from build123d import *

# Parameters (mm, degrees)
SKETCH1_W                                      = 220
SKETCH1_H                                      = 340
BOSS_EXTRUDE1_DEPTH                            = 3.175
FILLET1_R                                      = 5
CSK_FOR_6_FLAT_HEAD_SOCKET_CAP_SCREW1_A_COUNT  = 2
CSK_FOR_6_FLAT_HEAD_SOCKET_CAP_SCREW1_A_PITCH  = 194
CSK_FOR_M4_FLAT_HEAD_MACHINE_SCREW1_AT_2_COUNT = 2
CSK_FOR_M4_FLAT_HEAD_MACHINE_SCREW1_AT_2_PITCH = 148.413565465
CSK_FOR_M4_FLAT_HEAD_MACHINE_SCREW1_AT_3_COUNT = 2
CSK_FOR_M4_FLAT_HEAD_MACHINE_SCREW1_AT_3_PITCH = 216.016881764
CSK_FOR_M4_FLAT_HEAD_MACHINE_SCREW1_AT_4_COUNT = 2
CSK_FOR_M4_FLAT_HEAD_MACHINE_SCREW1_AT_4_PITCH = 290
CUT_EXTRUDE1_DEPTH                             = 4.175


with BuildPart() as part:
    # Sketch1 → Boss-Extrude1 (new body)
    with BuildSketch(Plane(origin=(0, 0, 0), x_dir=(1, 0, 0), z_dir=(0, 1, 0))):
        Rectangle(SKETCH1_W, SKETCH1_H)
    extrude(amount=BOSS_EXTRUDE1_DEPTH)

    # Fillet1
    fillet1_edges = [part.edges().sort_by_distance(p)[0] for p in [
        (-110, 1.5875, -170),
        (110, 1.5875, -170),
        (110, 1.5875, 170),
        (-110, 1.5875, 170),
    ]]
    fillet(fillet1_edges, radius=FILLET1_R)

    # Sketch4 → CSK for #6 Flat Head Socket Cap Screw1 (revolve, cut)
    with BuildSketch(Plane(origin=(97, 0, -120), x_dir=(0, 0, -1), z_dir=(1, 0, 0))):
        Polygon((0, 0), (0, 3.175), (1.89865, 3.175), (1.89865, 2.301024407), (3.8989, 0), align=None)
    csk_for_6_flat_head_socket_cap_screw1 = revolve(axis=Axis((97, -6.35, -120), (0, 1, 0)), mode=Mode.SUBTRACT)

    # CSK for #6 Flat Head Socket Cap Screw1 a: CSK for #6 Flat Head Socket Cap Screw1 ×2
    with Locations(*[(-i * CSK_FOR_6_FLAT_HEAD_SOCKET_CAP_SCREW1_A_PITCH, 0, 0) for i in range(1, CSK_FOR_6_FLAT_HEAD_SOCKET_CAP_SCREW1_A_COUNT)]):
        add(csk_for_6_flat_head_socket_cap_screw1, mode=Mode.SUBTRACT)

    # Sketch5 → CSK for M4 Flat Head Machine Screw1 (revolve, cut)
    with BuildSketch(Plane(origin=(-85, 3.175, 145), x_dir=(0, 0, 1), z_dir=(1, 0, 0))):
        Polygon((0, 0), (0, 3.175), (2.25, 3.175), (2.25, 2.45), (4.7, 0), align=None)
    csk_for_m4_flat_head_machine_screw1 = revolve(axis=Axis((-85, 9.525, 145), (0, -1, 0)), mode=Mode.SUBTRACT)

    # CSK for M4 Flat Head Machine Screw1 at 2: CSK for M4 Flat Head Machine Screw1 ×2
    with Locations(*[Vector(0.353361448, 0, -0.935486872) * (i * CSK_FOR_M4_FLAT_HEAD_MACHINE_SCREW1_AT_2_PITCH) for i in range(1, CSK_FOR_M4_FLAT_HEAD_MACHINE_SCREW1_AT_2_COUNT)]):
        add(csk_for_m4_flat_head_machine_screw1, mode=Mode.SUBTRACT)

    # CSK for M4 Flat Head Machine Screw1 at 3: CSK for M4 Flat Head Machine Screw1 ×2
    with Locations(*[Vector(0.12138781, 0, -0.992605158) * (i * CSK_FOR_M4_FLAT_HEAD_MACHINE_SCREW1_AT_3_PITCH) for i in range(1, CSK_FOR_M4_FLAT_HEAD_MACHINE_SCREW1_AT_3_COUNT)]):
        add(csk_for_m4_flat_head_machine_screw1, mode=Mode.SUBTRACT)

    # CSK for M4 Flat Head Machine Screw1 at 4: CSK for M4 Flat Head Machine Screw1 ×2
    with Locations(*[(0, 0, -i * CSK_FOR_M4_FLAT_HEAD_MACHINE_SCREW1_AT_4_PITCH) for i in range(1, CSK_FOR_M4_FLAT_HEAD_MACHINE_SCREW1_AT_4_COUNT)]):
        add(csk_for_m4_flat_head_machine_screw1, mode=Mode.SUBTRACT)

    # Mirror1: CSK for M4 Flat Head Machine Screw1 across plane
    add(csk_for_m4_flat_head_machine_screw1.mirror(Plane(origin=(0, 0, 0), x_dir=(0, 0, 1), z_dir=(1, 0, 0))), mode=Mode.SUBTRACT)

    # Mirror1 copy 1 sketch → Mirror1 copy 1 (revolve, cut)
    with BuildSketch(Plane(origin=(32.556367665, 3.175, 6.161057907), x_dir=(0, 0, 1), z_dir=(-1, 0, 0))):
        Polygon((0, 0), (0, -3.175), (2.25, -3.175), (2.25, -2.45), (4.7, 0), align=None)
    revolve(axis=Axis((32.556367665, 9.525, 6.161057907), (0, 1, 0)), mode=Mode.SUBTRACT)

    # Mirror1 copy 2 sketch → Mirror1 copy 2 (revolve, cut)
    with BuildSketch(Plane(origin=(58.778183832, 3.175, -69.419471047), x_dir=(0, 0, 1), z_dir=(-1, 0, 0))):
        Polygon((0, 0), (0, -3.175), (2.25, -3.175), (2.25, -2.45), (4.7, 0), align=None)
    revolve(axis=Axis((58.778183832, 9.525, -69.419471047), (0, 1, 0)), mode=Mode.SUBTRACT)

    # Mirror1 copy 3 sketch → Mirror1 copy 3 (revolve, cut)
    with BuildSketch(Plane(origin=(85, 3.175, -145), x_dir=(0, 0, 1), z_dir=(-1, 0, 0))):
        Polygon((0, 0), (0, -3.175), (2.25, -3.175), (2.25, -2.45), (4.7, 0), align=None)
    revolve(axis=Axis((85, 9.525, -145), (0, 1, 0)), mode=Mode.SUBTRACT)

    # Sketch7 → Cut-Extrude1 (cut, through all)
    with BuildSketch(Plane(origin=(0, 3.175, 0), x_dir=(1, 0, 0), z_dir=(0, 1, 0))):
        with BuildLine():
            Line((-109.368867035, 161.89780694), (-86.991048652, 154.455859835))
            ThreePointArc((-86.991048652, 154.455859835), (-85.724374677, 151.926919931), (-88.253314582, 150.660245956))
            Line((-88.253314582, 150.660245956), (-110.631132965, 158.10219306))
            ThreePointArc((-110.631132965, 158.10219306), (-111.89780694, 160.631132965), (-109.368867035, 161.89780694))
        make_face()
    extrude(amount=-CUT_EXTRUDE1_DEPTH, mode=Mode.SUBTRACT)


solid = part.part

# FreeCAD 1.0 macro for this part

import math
import FreeCAD as App
import Part
import Sketcher
Q = App.Units.Quantity


def edges_at(feature, points):
    """Names of the edges that pass closest to the given points."""
    edges = feature.Shape.Edges
    near = lambda p: min(range(len(edges)), key=lambda i: edges[i].distToShape(Part.Vertex(*p))[0])
    return sorted({f"Edge{near(p) + 1}" for p in points})


def add_polygon(sketch, points):
    """Adds a closed chain of lines whose ends are joined by coincident constraints."""
    first, n = sketch.GeometryCount, len(points)
    for a, b in zip(points, points[1:] + points[:1]):
        sketch.addGeometry(Part.LineSegment(App.Vector(*a, 0), App.Vector(*b, 0)), False)
    for i in range(n):
        sketch.addConstraint(Sketcher.Constraint("Coincident", first + i, 2, first + (i + 1) % n, 1))

doc = App.newDocument("Part")
params = doc.addObject("Spreadsheet::Sheet", "Params")
for row, (alias, value) in enumerate([
    ("sketch1_width", "220 mm"),
    ("sketch1_height", "340 mm"),
    ("pad1_length", "3.175 mm"),
    ("fillet_radius", "5 mm"),
    ("groove_angle", "360 deg"),
    ("linearpattern_pitch", "194 mm"),
    ("sketch3_height", "4.7 mm"),
    ("sketch3_height2", "2.25 mm"),
    ("groove2_angle", "360 deg"),
    ("linearpattern2_pitch", "148.413566 mm"),
    ("linearpattern3_pitch", "216.016882 mm"),
    ("linearpattern4_pitch", "290 mm"),
    ("sketch4_height", "4.7 mm"),
    ("sketch4_height2", "2.25 mm"),
    ("groove3_angle", "360 deg"),
    ("sketch5_height", "4.7 mm"),
    ("sketch5_height2", "2.25 mm"),
    ("groove4_angle", "360 deg"),
    ("sketch6_height", "4.7 mm"),
    ("sketch6_height2", "2.25 mm"),
    ("groove5_angle", "360 deg"),
    ("sketch7_radius", "2 mm"),
], start=1):
    params.set(f"A{row}", alias)
    params.set(f"B{row}", "=" + value)
    params.setAlias(f"B{row}", alias)

body = doc.addObject("PartDesign::Body", "Body")

sketch1 = doc.addObject("Sketcher::SketchObject", "Sketch")
body.addObject(sketch1)
sketch1.AttachmentSupport = (doc.XZ_Plane, [""])
sketch1.MapMode = "FlatFace"
add_polygon(sketch1, [(-110, -170), (-110, 170), (110, 170), (110, -170)])
sketch1.addConstraint([
    Sketcher.Constraint("Vertical", 0),
    Sketcher.Constraint("Horizontal", 1),
    Sketcher.Constraint("Vertical", 2),
    Sketcher.Constraint("Horizontal", 3),
    Sketcher.Constraint("Symmetric", 0, 2, 2, 2, -1, 1),
    Sketcher.Constraint("DistanceX", 1, 1, 1, 2, 220.0),
    Sketcher.Constraint("DistanceY", 0, 1, 0, 2, 340.0),
])
sketch1.setExpression("Constraints[9]", "Params.sketch1_width")
sketch1.setExpression("Constraints[10]", "Params.sketch1_height")
pad1 = doc.addObject("PartDesign::Pad", "Pad")
body.addObject(pad1)
pad1.Profile = sketch1
pad1.setExpression("Length", "Params.pad1_length")
pad1.Reversed = True
doc.recompute()

fillet = doc.addObject("PartDesign::Fillet", "Fillet")
body.addObject(fillet)
fillet.Base = (pad1, edges_at(pad1, [
    (-110, 1.587, -170),
    (110, 1.587, -170),
    (110, 1.587, 170),
    (-110, 1.587, 170),
]))
fillet.setExpression("Radius", "Params.fillet_radius")

sketch2 = doc.addObject("Sketcher::SketchObject", "Sketch001")
body.addObject(sketch2)
sketch2.AttachmentSupport = (doc.YZ_Plane, [""])
sketch2.MapMode = "FlatFace"
sketch2.AttachmentOffset = App.Placement(App.Vector(0, 0, 97), App.Rotation())
add_polygon(sketch2, [(3.2, -120), (0, -120), (0, -123.9), (2.3, -121.9), (3.2, -121.9)])
sketch2.addGeometry(Part.LineSegment(App.Vector(0, -120, 0), App.Vector(3.2, -120, 0)), True)
sketch2.addConstraint([
    Sketcher.Constraint("Horizontal", 0),
    Sketcher.Constraint("Vertical", 1),
    Sketcher.Constraint("Horizontal", 3),
    Sketcher.Constraint("Vertical", 4),
    Sketcher.Constraint("Horizontal", 5),
    Sketcher.Constraint("Coincident", 5, 1, 0, 2),
    Sketcher.Constraint("PointOnObject", 0, 2, -2),
    Sketcher.Constraint("Vertical", 3, 2, 5, 2),
    Sketcher.Constraint("Angle", 2, Q("41 deg")),
    Sketcher.Constraint("DistanceY", 0, 2, -1, 1, 120.0),
    Sketcher.Constraint("DistanceX", 0, 2, 0, 1, 3.175),
    Sketcher.Constraint("DistanceY", 1, 2, 1, 1, 3.8989),
    Sketcher.Constraint("DistanceY", 4, 1, 4, 2, 1.89865),
])
groove = doc.addObject("PartDesign::Groove", "Groove")
body.addObject(groove)
groove.Profile = sketch2
groove.ReferenceAxis = (sketch2, ["Axis0"])
groove.setExpression("Angle", "Params.groove_angle")
doc.recompute()

linearpattern = doc.addObject("PartDesign::LinearPattern", "LinearPattern")
body.addObject(linearpattern)
linearpattern.Originals = [groove]
linearpattern.Direction = (doc.X_Axis, [""])
linearpattern.Mode = "offset"
linearpattern.setExpression("Offset", "Params.linearpattern_pitch")
linearpattern.Occurrences = 2
linearpattern.Reversed = True
body.Tip = linearpattern

sketch3 = doc.addObject("Sketcher::SketchObject", "Sketch002")
body.addObject(sketch3)
sketch3.AttachmentSupport = (doc.YZ_Plane, [""])
sketch3.MapMode = "FlatFace"
sketch3.AttachmentOffset = App.Placement(App.Vector(0, 0, -85), App.Rotation())
add_polygon(sketch3, [(0, 145), (3.2, 145), (3.2, 149.7), (0.7, 147.2), (0, 147.2)])
sketch3.addGeometry(Part.LineSegment(App.Vector(3.2, 145, 0), App.Vector(0, 145, 0)), True)
sketch3.addConstraint([
    Sketcher.Constraint("Horizontal", 0),
    Sketcher.Constraint("Vertical", 1),
    Sketcher.Constraint("Horizontal", 3),
    Sketcher.Constraint("Vertical", 4),
    Sketcher.Constraint("Horizontal", 5),
    Sketcher.Constraint("Coincident", 5, 1, 0, 2),
    Sketcher.Constraint("PointOnObject", 3, 2, -2),
    Sketcher.Constraint("PointOnObject", 5, 2, -2),
    Sketcher.Constraint("Angle", 2, Q("-135 deg")),
    Sketcher.Constraint("DistanceY", 1, 1, 1, 2, 4.7),
    Sketcher.Constraint("DistanceY", -1, 1, 0, 2, 145.0),
    Sketcher.Constraint("DistanceY", 4, 2, 4, 1, 2.25),
    Sketcher.Constraint("DistanceX", 0, 1, 0, 2, 3.175),
])
sketch3.setExpression("Constraints[14]", "Params.sketch3_height")
sketch3.setExpression("Constraints[16]", "Params.sketch3_height2")
groove2 = doc.addObject("PartDesign::Groove", "Groove001")
body.addObject(groove2)
groove2.Profile = sketch3
groove2.ReferenceAxis = (sketch3, ["Axis0"])
groove2.setExpression("Angle", "Params.groove2_angle")
doc.recompute()

datumline = doc.addObject("PartDesign::Line", "DatumLine")
body.addObject(datumline)
datumline.Placement = App.Placement(App.Vector(0, 0, 0), App.Rotation(App.Vector(0, 0, 1), App.Vector(0.353361448, 0, -0.935486872)))
linearpattern2 = doc.addObject("PartDesign::LinearPattern", "LinearPattern001")
body.addObject(linearpattern2)
linearpattern2.Originals = [groove2]
linearpattern2.Direction = (datumline, [""])
linearpattern2.Mode = "offset"
linearpattern2.setExpression("Offset", "Params.linearpattern2_pitch")
linearpattern2.Occurrences = 2
body.Tip = linearpattern2
doc.recompute()

datumline2 = doc.addObject("PartDesign::Line", "DatumLine001")
body.addObject(datumline2)
datumline2.Placement = App.Placement(App.Vector(0, 0, 0), App.Rotation(App.Vector(0, 0, 1), App.Vector(0.12138781, 0, -0.992605158)))
linearpattern3 = doc.addObject("PartDesign::LinearPattern", "LinearPattern002")
body.addObject(linearpattern3)
linearpattern3.Originals = [groove2]
linearpattern3.Direction = (datumline2, [""])
linearpattern3.Mode = "offset"
linearpattern3.setExpression("Offset", "Params.linearpattern3_pitch")
linearpattern3.Occurrences = 2
body.Tip = linearpattern3
doc.recompute()

linearpattern4 = doc.addObject("PartDesign::LinearPattern", "LinearPattern003")
body.addObject(linearpattern4)
linearpattern4.Originals = [groove2]
linearpattern4.Direction = (doc.Z_Axis, [""])
linearpattern4.Mode = "offset"
linearpattern4.setExpression("Offset", "Params.linearpattern4_pitch")
linearpattern4.Occurrences = 2
linearpattern4.Reversed = True
body.Tip = linearpattern4
doc.recompute()

mirrored = doc.addObject("PartDesign::Mirrored", "Mirrored")
body.addObject(mirrored)
mirrored.Originals = [groove2]
mirrored.MirrorPlane = (doc.YZ_Plane, [""])
body.Tip = mirrored

sketch4 = doc.addObject("Sketcher::SketchObject", "Sketch003")
body.addObject(sketch4)
sketch4.AttachmentSupport = (doc.YZ_Plane, [""])
sketch4.MapMode = "FlatFace"
sketch4.AttachmentOffset = App.Placement(App.Vector(0, 0, 32.556368), App.Rotation())
add_polygon(sketch4, [(3.2, 6.2), (0, 6.2), (0, 8.4), (0.7, 8.4), (3.2, 10.9)])
sketch4.addGeometry(Part.LineSegment(App.Vector(0, 6.2, 0), App.Vector(3.2, 6.2, 0)), True)
sketch4.addConstraint([
    Sketcher.Constraint("Horizontal", 0),
    Sketcher.Constraint("Vertical", 1),
    Sketcher.Constraint("Horizontal", 2),
    Sketcher.Constraint("Vertical", 4),
    Sketcher.Constraint("Horizontal", 5),
    Sketcher.Constraint("Coincident", 5, 1, 0, 2),
    Sketcher.Constraint("PointOnObject", 0, 2, -2),
    Sketcher.Constraint("Vertical", 3, 2, 5, 2),
    Sketcher.Constraint("Angle", 3, Q("45 deg")),
    Sketcher.Constraint("DistanceY", 4, 2, 4, 1, 4.7),
    Sketcher.Constraint("DistanceY", 1, 1, 1, 2, 2.25),
    Sketcher.Constraint("DistanceX", 0, 2, 0, 1, 3.175),
    Sketcher.Constraint("DistanceY", -1, 1, 0, 2, 6.161058),
])
sketch4.setExpression("Constraints[14]", "Params.sketch4_height")
sketch4.setExpression("Constraints[15]", "Params.sketch4_height2")
groove3 = doc.addObject("PartDesign::Groove", "Groove002")
body.addObject(groove3)
groove3.Profile = sketch4
groove3.ReferenceAxis = (sketch4, ["Axis0"])
groove3.setExpression("Angle", "Params.groove3_angle")

sketch5 = doc.addObject("Sketcher::SketchObject", "Sketch004")
body.addObject(sketch5)
sketch5.AttachmentSupport = (doc.YZ_Plane, [""])
sketch5.MapMode = "FlatFace"
sketch5.AttachmentOffset = App.Placement(App.Vector(0, 0, 58.778184), App.Rotation())
add_polygon(sketch5, [(3.2, -69.4), (0, -69.4), (0, -67.2), (0.7, -67.2), (3.2, -64.7)])
sketch5.addGeometry(Part.LineSegment(App.Vector(0, -69.4, 0), App.Vector(3.2, -69.4, 0)), True)
sketch5.addConstraint([
    Sketcher.Constraint("Horizontal", 0),
    Sketcher.Constraint("Vertical", 1),
    Sketcher.Constraint("Horizontal", 2),
    Sketcher.Constraint("Vertical", 4),
    Sketcher.Constraint("Horizontal", 5),
    Sketcher.Constraint("Coincident", 5, 1, 0, 2),
    Sketcher.Constraint("PointOnObject", 0, 2, -2),
    Sketcher.Constraint("Vertical", 3, 2, 5, 2),
    Sketcher.Constraint("Angle", 3, Q("45 deg")),
    Sketcher.Constraint("DistanceY", 4, 2, 4, 1, 4.7),
    Sketcher.Constraint("DistanceY", 1, 1, 1, 2, 2.25),
    Sketcher.Constraint("DistanceX", 0, 2, 0, 1, 3.175),
    Sketcher.Constraint("DistanceY", 0, 2, -1, 1, 69.419471),
])
sketch5.setExpression("Constraints[14]", "Params.sketch5_height")
sketch5.setExpression("Constraints[15]", "Params.sketch5_height2")
groove4 = doc.addObject("PartDesign::Groove", "Groove003")
body.addObject(groove4)
groove4.Profile = sketch5
groove4.ReferenceAxis = (sketch5, ["Axis0"])
groove4.setExpression("Angle", "Params.groove4_angle")

sketch6 = doc.addObject("Sketcher::SketchObject", "Sketch005")
body.addObject(sketch6)
sketch6.AttachmentSupport = (doc.YZ_Plane, [""])
sketch6.MapMode = "FlatFace"
sketch6.AttachmentOffset = App.Placement(App.Vector(0, 0, 85), App.Rotation())
add_polygon(sketch6, [(3.2, -145), (0, -145), (0, -142.8), (0.7, -142.8), (3.2, -140.3)])
sketch6.addGeometry(Part.LineSegment(App.Vector(0, -145, 0), App.Vector(3.2, -145, 0)), True)
sketch6.addConstraint([
    Sketcher.Constraint("Horizontal", 0),
    Sketcher.Constraint("Vertical", 1),
    Sketcher.Constraint("Horizontal", 2),
    Sketcher.Constraint("Vertical", 4),
    Sketcher.Constraint("Horizontal", 5),
    Sketcher.Constraint("Coincident", 5, 1, 0, 2),
    Sketcher.Constraint("PointOnObject", 0, 2, -2),
    Sketcher.Constraint("Vertical", 3, 2, 5, 2),
    Sketcher.Constraint("Angle", 3, Q("45 deg")),
    Sketcher.Constraint("DistanceY", 4, 2, 4, 1, 4.7),
    Sketcher.Constraint("DistanceY", 0, 2, -1, 1, 145.0),
    Sketcher.Constraint("DistanceY", 1, 1, 1, 2, 2.25),
    Sketcher.Constraint("DistanceX", 0, 2, 0, 1, 3.175),
])
sketch6.setExpression("Constraints[14]", "Params.sketch6_height")
sketch6.setExpression("Constraints[16]", "Params.sketch6_height2")
groove5 = doc.addObject("PartDesign::Groove", "Groove004")
body.addObject(groove5)
groove5.Profile = sketch6
groove5.ReferenceAxis = (sketch6, ["Axis0"])
groove5.setExpression("Angle", "Params.groove5_angle")

sketch7 = doc.addObject("Sketcher::SketchObject", "Sketch006")
body.addObject(sketch7)
sketch7.AttachmentSupport = (doc.XZ_Plane, [""])
sketch7.MapMode = "FlatFace"
sketch7.AttachmentOffset = App.Placement(App.Vector(0, 0, -3.175), App.Rotation())
sketch7.addGeometry([
    Part.LineSegment(App.Vector(-87, -154.5, 0), App.Vector(-109.4, -161.9, 0)),
    Part.ArcOfCircle(Part.Circle(App.Vector(-110, -160, 0), App.Vector(0, 0, 1), 2), math.radians(108), math.radians(288)),
    Part.LineSegment(App.Vector(-110.6, -158.1, 0), App.Vector(-88.3, -150.7, 0)),
    Part.ArcOfCircle(Part.Circle(App.Vector(-87.6, -152.6, 0), App.Vector(0, 0, 1), 2), math.radians(-72), math.radians(108)),
], False)
sketch7.addConstraint([
    Sketcher.Constraint("Tangent", 0, 2, 1, 2),
    Sketcher.Constraint("Tangent", 1, 1, 2, 1),
    Sketcher.Constraint("Tangent", 2, 2, 3, 2),
    Sketcher.Constraint("Tangent", 3, 1, 0, 1),
    Sketcher.Constraint("Equal", 1, 3),
    Sketcher.Constraint("Radius", 1, 2.0),
    Sketcher.Constraint("DistanceX", 1, 3, -1, 1, 110.0),
    Sketcher.Constraint("DistanceY", 1, 3, -1, 1, 160.0),
    Sketcher.Constraint("Distance", 0, 23.582819),
    Sketcher.Constraint("DistanceX", 3, 3, -1, 1, 87.622182),
])
sketch7.setExpression("Constraints[5]", "Params.sketch7_radius")
pocket1 = doc.addObject("PartDesign::Pocket", "Pocket")
body.addObject(pocket1)
pocket1.Profile = sketch7
pocket1.Type = "ThroughAll"
pocket1.Reversed = True

doc.recompute()
